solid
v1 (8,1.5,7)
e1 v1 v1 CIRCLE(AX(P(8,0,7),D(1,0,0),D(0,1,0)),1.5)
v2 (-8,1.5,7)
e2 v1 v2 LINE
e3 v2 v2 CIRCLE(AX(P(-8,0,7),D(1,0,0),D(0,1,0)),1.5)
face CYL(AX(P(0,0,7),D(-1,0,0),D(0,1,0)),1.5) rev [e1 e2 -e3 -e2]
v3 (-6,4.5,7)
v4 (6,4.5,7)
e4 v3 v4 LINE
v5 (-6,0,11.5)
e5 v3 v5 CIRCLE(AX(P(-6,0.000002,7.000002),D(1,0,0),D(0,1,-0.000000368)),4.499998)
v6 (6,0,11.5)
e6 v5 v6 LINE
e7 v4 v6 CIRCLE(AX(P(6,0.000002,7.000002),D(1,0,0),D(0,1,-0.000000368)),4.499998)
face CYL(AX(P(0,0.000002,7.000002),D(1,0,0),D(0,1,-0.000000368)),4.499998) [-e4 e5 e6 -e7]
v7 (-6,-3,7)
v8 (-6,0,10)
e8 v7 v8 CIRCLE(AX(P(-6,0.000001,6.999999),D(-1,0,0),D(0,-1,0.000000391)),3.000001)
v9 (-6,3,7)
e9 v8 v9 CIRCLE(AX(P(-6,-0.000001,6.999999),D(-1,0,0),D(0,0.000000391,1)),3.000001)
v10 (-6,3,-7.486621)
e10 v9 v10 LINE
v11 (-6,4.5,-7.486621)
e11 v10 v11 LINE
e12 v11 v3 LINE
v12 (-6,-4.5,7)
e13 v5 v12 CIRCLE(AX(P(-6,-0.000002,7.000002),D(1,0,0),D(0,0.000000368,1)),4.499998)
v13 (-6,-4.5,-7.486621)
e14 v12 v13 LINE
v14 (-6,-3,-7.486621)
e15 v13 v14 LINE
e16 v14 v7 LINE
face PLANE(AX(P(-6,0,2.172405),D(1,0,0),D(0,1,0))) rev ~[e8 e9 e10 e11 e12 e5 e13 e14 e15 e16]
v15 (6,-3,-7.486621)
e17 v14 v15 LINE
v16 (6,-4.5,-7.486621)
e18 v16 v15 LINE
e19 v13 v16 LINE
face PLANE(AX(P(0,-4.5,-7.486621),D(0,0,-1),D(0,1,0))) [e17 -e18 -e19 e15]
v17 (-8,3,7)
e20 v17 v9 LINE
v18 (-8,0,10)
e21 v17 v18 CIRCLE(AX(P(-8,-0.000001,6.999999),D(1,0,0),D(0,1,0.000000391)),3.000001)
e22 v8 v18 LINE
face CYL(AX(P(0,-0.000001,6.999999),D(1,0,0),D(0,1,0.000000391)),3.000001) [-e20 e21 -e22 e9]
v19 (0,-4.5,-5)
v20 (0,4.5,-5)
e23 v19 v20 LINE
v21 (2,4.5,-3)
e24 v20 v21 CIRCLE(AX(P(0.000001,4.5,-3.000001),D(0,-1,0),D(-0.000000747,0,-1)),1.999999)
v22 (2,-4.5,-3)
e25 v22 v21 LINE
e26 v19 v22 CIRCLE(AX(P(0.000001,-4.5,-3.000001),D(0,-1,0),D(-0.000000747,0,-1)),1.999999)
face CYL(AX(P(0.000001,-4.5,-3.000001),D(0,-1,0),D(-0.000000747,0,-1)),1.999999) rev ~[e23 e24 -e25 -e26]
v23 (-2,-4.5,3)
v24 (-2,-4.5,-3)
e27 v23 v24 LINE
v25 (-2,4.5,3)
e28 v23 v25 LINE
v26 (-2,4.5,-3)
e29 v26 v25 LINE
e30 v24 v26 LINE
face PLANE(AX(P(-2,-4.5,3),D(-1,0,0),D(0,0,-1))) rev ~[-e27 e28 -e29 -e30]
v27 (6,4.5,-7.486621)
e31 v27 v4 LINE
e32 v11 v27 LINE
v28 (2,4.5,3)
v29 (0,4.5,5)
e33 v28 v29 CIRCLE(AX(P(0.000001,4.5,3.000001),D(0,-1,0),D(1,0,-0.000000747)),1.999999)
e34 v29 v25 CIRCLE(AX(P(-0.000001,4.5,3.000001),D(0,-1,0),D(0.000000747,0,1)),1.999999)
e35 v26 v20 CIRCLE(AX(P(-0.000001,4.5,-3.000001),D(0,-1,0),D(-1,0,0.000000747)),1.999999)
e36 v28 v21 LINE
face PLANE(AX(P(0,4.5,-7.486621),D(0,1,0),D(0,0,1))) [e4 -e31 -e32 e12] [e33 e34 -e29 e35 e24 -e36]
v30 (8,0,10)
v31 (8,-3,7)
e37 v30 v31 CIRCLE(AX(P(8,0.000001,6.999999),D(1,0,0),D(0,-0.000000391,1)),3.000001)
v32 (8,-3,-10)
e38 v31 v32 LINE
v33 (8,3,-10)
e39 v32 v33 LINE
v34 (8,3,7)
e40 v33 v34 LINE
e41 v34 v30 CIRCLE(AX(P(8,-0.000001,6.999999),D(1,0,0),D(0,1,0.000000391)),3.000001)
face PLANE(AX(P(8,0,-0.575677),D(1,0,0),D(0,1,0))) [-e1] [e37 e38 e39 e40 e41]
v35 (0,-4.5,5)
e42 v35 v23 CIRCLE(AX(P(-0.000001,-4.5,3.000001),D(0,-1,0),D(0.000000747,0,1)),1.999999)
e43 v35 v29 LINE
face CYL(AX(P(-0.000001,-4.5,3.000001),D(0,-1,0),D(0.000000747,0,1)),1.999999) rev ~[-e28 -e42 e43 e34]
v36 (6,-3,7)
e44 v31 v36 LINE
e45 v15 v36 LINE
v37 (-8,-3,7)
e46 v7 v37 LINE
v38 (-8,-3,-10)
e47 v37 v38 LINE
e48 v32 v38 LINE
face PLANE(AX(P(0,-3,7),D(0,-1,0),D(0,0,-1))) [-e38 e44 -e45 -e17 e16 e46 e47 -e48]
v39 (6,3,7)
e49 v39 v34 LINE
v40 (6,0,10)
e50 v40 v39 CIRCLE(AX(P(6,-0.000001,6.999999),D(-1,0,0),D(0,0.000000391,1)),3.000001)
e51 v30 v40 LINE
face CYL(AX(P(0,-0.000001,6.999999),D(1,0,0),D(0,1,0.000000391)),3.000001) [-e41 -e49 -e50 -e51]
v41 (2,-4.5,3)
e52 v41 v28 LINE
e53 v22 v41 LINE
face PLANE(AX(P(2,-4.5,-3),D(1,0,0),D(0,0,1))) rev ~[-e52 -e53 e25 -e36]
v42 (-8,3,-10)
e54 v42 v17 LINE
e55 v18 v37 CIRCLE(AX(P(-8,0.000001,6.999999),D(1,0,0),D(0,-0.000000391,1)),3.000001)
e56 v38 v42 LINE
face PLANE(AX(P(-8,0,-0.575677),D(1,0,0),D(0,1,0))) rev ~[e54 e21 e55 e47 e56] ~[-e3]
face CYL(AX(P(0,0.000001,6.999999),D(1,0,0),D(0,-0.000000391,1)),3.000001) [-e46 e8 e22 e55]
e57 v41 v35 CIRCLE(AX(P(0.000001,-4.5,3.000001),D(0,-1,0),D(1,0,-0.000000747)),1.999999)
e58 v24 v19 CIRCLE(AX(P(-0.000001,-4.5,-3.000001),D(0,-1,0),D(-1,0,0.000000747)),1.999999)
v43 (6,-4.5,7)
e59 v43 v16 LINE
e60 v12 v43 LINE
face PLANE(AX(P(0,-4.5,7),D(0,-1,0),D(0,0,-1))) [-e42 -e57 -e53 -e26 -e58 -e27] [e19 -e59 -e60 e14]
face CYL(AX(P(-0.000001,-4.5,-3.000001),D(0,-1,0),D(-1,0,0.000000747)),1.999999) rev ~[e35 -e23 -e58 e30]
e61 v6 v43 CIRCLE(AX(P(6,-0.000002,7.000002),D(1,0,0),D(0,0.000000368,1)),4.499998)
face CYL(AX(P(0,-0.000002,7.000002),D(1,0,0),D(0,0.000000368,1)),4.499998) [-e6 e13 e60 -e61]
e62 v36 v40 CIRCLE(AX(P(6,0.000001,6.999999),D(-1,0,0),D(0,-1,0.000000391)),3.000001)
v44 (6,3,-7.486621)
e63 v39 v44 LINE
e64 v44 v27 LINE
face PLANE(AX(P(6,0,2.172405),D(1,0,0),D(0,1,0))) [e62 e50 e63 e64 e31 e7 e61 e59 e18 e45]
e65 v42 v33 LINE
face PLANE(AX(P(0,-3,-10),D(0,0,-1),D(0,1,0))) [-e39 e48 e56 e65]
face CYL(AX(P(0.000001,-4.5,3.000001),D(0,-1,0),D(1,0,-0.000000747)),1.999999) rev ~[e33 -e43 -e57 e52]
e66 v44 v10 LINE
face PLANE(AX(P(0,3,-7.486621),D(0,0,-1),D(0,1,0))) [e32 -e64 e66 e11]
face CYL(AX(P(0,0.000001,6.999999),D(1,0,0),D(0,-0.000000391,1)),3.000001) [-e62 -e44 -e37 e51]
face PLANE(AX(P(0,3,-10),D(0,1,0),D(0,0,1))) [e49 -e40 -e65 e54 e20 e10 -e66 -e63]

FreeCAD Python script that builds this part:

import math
import FreeCAD as App
import Part
import Sketcher

V = App.Vector
Q = App.Units.Quantity

doc = App.newDocument("Part")
body = doc.addObject("PartDesign::Body", "Body")

sketch1 = body.newObject("Sketcher::SketchObject", "Sketch")
sketch1.AttachmentSupport = (doc.getObject("YZ_Plane"), [""])
sketch1.MapMode = "FlatFace"
sketch1.addGeometry([
    Part.LineSegment(V(-3, -10, 0), V(3, -10, 0)),
    Part.LineSegment(V(3, -10, 0), V(3, 7, 0)),
    Part.ArcOfCircle(Part.Circle(V(0, 7, 0), V(0, 0, 1), 3), math.radians(0), math.radians(90)),
    Part.ArcOfCircle(Part.Circle(V(0, 7, 0), V(0, 0, 1), 3), math.radians(90), math.radians(180)),
    Part.LineSegment(V(-3, 7, 0), V(-3, -10, 0)),
    Part.Circle(V(0, 7, 0), V(0, 0, 1), 1.5),
], False)
sketch1.addConstraint([
    Sketcher.Constraint("Coincident", 0, 2, 1, 1),
    Sketcher.Constraint("Tangent", 1, 2, 2, 1),
    Sketcher.Constraint("Tangent", 2, 2, 3, 1),
    Sketcher.Constraint("Tangent", 3, 2, 4, 1),
    Sketcher.Constraint("Coincident", 4, 2, 0, 1),
    Sketcher.Constraint("Horizontal", 0),
    Sketcher.Constraint("Vertical", 1),
    Sketcher.Constraint("Vertical", 4),
    Sketcher.Constraint("Coincident", 5, 3, 2, 3),
    Sketcher.Constraint("Equal", 2, 3),
    Sketcher.Constraint("PointOnObject", 2, 3, -2),
    Sketcher.Constraint("PointOnObject", 2, 2, -2),
    Sketcher.Constraint("Diameter", 5, Q("3 mm")),
    Sketcher.Constraint("Radius", 2, Q("3.000001 mm")),
    Sketcher.Constraint("DistanceY", 1, 1, 1, 2, Q("17 mm")),
    Sketcher.Constraint("DistanceY", -1, 1, 2, 3, Q("6.999999 mm")),
])
pad1 = body.newObject("PartDesign::Pad", "Pad")
pad1.Profile = sketch1
pad1.Type = "TwoLengths"
pad1.Length = 8
pad1.Length2 = 8

sketch2 = body.newObject("Sketcher::SketchObject", "Sketch001")
sketch2.AttachmentSupport = (doc.getObject("YZ_Plane"), [""])
sketch2.MapMode = "FlatFace"
sketch2.addGeometry([
    Part.LineSegment(V(3, 7, 0), V(3, -7.5, 0)),
    Part.LineSegment(V(3, -7.5, 0), V(4.5, -7.5, 0)),
    Part.LineSegment(V(4.5, -7.5, 0), V(4.5, 7, 0)),
    Part.ArcOfCircle(Part.Circle(V(0, 7, 0), V(0, 0, 1), 4.5), math.radians(0), math.radians(90)),
    Part.ArcOfCircle(Part.Circle(V(0, 7, 0), V(0, 0, 1), 4.5), math.radians(90), math.radians(180)),
    Part.LineSegment(V(-4.5, 7, 0), V(-4.5, -7.5, 0)),
    Part.LineSegment(V(-4.5, -7.5, 0), V(-3, -7.5, 0)),
    Part.LineSegment(V(-3, -7.5, 0), V(-3, 7, 0)),
    Part.ArcOfCircle(Part.Circle(V(0, 7, 0), V(0, 0, 1), 3), math.radians(90), math.radians(180)),
    Part.ArcOfCircle(Part.Circle(V(0, 7, 0), V(0, 0, 1), 3), math.radians(0), math.radians(90)),
], False)
sketch2.addConstraint([
    Sketcher.Constraint("Coincident", 0, 2, 1, 1),
    Sketcher.Constraint("Coincident", 1, 2, 2, 1),
    Sketcher.Constraint("Tangent", 2, 2, 3, 1),
    Sketcher.Constraint("Tangent", 3, 2, 4, 1),
    Sketcher.Constraint("Tangent", 4, 2, 5, 1),
    Sketcher.Constraint("Coincident", 5, 2, 6, 1),
    Sketcher.Constraint("Coincident", 6, 2, 7, 1),
    Sketcher.Constraint("Tangent", 7, 2, 8, 2),
    Sketcher.Constraint("Tangent", 8, 1, 9, 2),
    Sketcher.Constraint("Tangent", 9, 1, 0, 1),
    Sketcher.Constraint("Vertical", 0),
    Sketcher.Constraint("Horizontal", 1),
    Sketcher.Constraint("Vertical", 2),
    Sketcher.Constraint("Vertical", 5),
    Sketcher.Constraint("Horizontal", 6),
    Sketcher.Constraint("Vertical", 7),
    Sketcher.Constraint("Coincident", 8, 3, 3, 3),
    Sketcher.Constraint("Equal", 3, 4),
    Sketcher.Constraint("Equal", 8, 9),
    Sketcher.Constraint("Symmetric", 1, 2, 5, 2, -2),
    Sketcher.Constraint("PointOnObject", 3, 2, -2),
    Sketcher.Constraint("PointOnObject", 8, 1, -2),
    Sketcher.Constraint("Radius", 8, Q("3.000001 mm")),
    Sketcher.Constraint("Radius", 3, Q("4.499998 mm")),
    Sketcher.Constraint("DistanceY", -1, 1, 3, 3, Q("7.000002 mm")),
    Sketcher.Constraint("DistanceY", 0, 2, 0, 1, Q("14.486621 mm")),
])
pad2 = body.newObject("PartDesign::Pad", "Pad001")
pad2.Profile = sketch2
pad2.Type = "TwoLengths"
pad2.Length = 6
pad2.Length2 = 6

sketch3 = body.newObject("Sketcher::SketchObject", "Sketch002")
sketch3.AttachmentSupport = (doc.getObject("XZ_Plane"), [""])
sketch3.MapMode = "FlatFace"
sketch3.AttachmentOffset = App.Placement(V(0, 0, 4.5), App.Rotation())
sketch3.addGeometry([
    Part.LineSegment(V(2, -3, 0), V(2, 3, 0)),
    Part.ArcOfCircle(Part.Circle(V(0, 3, 0), V(0, 0, 1), 2), math.radians(0), math.radians(90)),
    Part.ArcOfCircle(Part.Circle(V(0, 3, 0), V(0, 0, 1), 2), math.radians(90), math.radians(180)),
    Part.LineSegment(V(-2, 3, 0), V(-2, -3, 0)),
    Part.ArcOfCircle(Part.Circle(V(0, -3, 0), V(0, 0, 1), 2), math.radians(180), math.radians(270)),
    Part.ArcOfCircle(Part.Circle(V(0, -3, 0), V(0, 0, 1), 2), math.radians(-90), math.radians(0)),
], False)
sketch3.addConstraint([
    Sketcher.Constraint("Tangent", 0, 2, 1, 1),
    Sketcher.Constraint("Tangent", 1, 2, 2, 1),
    Sketcher.Constraint("Tangent", 2, 2, 3, 1),
    Sketcher.Constraint("Tangent", 3, 2, 4, 1),
    Sketcher.Constraint("Tangent", 4, 2, 5, 1),
    Sketcher.Constraint("Tangent", 5, 2, 0, 1),
    Sketcher.Constraint("Vertical", 0),
    Sketcher.Constraint("Vertical", 3),
    Sketcher.Constraint("Equal", 1, 2),
    Sketcher.Constraint("Equal", 2, 4),
    Sketcher.Constraint("Symmetric", 1, 3, 4, 3, -1, 1),
    Sketcher.Constraint("PointOnObject", 1, 2, -2),
    Sketcher.Constraint("PointOnObject", 4, 2, -2),
    Sketcher.Constraint("Radius", 1, Q("1.999999 mm")),
    Sketcher.Constraint("DistanceY", 0, 1, 0, 2, Q("6 mm")),
])
pocket1 = body.newObject("PartDesign::Pocket", "Pocket")
pocket1.Profile = sketch3
pocket1.Length = 25

doc.recompute()
